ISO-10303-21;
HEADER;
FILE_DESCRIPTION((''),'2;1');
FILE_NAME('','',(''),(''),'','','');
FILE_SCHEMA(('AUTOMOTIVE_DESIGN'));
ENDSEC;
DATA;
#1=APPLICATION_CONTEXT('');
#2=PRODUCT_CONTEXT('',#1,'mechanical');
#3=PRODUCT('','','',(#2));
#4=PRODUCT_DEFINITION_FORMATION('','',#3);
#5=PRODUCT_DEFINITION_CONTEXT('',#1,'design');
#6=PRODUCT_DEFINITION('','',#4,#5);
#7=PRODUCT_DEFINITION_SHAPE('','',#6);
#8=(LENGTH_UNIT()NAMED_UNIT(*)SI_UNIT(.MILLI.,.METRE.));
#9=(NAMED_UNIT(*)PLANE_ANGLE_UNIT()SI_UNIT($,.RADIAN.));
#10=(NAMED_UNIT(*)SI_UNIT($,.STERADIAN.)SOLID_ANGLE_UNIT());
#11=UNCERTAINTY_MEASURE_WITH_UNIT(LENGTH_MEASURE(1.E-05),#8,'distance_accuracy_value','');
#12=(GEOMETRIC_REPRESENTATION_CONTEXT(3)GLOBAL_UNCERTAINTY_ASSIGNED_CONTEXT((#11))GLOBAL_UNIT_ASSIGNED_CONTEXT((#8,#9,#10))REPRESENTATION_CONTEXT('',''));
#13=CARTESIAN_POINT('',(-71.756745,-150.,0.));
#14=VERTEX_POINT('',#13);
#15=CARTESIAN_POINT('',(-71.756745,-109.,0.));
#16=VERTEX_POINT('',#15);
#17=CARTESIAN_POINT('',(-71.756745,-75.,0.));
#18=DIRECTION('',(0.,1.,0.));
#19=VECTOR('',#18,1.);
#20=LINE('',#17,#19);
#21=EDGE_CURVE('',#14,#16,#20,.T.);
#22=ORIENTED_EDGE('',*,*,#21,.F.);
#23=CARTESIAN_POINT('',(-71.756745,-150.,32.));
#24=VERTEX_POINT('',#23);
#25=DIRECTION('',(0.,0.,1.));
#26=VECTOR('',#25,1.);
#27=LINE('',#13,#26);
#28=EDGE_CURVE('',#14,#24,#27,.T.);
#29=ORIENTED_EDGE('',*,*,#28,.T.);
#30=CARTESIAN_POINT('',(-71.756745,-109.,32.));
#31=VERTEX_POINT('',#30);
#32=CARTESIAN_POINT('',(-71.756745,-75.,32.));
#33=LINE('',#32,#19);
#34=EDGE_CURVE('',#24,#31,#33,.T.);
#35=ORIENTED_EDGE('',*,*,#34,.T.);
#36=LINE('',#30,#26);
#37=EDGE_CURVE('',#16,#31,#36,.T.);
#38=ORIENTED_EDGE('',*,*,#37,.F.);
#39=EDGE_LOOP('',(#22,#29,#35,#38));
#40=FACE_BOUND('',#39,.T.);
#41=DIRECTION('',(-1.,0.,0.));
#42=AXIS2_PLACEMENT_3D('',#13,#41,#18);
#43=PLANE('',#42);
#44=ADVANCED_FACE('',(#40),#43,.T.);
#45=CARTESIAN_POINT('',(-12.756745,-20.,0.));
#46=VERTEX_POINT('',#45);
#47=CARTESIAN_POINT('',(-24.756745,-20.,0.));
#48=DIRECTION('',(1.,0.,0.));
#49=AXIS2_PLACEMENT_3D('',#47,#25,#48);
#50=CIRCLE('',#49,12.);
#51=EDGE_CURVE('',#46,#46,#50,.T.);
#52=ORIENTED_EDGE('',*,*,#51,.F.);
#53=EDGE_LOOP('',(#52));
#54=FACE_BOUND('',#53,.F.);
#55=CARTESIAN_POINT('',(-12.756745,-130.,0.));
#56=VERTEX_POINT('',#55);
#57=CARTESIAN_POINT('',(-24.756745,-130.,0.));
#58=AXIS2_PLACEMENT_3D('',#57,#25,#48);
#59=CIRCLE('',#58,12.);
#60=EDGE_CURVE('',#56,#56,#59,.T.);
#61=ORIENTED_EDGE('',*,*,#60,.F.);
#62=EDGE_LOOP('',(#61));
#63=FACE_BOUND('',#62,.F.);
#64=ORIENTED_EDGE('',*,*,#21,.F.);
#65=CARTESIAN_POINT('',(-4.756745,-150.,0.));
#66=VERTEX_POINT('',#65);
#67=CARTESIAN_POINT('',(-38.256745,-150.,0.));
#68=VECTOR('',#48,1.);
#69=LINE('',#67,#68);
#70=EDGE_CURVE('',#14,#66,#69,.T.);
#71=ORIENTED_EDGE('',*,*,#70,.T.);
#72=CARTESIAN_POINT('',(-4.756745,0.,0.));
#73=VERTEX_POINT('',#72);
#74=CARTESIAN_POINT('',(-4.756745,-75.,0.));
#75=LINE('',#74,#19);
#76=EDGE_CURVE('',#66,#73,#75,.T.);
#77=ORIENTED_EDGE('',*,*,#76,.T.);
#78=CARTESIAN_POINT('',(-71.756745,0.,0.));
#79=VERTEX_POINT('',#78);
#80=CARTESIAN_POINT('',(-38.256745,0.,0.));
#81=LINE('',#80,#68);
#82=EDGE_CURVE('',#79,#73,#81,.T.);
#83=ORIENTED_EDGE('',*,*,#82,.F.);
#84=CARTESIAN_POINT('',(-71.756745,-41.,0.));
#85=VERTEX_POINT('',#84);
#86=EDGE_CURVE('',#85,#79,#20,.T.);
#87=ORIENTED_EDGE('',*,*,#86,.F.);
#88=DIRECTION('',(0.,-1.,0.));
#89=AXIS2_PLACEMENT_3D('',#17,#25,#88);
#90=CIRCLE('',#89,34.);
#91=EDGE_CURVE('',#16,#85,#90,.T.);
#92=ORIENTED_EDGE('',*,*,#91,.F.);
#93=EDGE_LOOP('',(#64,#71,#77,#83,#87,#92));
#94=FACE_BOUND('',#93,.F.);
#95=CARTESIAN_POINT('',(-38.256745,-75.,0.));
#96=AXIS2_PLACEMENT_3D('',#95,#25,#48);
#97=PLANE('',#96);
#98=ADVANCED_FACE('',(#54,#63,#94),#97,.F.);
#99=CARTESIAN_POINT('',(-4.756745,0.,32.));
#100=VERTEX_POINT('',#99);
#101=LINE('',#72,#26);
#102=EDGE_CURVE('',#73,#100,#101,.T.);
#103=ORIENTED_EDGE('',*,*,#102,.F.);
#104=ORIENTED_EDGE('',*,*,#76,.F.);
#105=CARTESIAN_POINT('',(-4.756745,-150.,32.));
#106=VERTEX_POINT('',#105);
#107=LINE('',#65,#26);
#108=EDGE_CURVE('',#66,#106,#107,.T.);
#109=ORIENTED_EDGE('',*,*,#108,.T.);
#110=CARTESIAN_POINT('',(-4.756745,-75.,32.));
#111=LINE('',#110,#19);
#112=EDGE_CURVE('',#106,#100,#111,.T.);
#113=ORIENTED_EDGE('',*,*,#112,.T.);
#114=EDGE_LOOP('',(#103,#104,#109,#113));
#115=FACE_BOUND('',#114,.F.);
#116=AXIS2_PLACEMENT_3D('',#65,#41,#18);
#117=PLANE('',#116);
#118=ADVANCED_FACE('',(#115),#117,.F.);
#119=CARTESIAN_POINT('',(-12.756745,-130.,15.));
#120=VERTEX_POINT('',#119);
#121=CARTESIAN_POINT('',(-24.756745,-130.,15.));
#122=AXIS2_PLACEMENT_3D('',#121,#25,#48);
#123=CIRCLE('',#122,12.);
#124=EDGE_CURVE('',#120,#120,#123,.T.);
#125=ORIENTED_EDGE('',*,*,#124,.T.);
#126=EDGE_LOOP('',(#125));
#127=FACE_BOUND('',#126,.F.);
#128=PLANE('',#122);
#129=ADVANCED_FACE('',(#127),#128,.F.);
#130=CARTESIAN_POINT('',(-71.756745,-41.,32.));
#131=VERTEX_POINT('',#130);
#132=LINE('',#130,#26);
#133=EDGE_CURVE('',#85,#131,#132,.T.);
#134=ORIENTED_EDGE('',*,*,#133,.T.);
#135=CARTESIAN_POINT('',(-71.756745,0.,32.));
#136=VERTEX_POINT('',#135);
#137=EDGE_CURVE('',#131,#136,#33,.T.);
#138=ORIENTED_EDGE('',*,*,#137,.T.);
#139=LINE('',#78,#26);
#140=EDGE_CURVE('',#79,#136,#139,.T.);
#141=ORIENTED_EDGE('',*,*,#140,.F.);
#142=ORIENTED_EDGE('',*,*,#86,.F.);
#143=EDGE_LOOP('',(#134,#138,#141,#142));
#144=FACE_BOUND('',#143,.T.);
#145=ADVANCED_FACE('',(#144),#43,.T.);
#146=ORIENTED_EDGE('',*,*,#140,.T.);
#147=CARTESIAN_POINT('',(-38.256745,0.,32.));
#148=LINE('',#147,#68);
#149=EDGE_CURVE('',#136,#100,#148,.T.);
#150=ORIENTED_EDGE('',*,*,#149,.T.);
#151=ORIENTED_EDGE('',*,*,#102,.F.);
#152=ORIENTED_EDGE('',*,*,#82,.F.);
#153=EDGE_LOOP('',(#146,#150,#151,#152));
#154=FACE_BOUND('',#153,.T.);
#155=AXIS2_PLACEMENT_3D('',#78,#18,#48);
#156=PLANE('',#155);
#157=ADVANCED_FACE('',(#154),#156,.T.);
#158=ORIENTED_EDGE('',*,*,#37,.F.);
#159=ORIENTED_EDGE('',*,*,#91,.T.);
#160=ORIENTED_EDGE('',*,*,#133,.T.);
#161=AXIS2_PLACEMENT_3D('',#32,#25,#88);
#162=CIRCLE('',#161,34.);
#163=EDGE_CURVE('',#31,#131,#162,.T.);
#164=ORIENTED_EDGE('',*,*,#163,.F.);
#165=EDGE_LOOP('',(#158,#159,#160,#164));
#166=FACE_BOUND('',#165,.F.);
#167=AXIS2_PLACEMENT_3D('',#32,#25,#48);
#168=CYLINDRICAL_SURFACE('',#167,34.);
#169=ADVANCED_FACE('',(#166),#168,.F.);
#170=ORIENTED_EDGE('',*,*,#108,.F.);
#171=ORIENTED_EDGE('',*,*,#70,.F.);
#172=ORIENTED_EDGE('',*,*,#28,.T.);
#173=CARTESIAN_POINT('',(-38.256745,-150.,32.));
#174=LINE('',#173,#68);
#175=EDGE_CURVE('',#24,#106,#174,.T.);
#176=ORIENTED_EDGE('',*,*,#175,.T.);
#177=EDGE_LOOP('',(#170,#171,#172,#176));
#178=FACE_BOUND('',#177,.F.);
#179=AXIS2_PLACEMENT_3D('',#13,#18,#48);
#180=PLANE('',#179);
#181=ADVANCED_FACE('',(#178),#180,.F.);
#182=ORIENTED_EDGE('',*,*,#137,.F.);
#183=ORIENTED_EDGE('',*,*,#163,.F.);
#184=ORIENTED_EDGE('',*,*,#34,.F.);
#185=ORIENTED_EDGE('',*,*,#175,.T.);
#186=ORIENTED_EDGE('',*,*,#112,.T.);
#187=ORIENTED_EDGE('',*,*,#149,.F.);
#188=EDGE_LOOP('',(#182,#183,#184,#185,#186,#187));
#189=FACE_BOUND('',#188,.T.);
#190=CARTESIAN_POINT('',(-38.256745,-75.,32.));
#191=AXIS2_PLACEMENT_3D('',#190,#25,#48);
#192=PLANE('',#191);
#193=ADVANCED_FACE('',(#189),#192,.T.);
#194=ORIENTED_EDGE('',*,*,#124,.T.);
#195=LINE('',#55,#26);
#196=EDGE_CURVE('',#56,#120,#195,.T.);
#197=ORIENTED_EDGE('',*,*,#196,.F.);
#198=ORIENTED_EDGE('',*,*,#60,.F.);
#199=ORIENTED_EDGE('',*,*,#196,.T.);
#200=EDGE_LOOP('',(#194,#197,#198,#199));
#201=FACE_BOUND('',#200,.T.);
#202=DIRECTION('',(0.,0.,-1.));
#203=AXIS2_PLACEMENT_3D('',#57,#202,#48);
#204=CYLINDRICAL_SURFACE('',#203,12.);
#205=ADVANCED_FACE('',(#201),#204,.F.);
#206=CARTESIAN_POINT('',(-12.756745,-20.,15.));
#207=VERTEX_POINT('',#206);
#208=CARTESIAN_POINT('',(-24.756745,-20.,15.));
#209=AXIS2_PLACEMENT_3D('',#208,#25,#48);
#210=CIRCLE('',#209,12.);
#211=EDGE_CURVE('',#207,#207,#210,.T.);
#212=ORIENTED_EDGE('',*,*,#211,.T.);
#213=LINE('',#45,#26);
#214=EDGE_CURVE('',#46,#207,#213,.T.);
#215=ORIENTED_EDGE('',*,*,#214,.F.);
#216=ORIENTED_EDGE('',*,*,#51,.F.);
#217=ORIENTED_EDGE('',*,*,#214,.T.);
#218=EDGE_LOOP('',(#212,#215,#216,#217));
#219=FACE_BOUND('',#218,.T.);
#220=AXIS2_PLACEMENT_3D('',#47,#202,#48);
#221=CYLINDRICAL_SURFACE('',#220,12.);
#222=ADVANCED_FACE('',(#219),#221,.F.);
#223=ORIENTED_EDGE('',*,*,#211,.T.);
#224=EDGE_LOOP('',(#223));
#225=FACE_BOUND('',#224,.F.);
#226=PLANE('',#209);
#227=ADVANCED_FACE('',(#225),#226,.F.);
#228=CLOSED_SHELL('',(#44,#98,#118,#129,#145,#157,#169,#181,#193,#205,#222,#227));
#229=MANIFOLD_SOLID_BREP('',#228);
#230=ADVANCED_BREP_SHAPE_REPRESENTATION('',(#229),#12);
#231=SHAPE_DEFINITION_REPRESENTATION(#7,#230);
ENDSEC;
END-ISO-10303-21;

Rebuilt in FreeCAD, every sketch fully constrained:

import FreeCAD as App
import Part
import Sketcher

V = App.Vector


def add_polygon(sketch, points):
    """Adds a closed chain of lines whose ends are joined by coincident constraints."""
    first, n = sketch.GeometryCount, len(points)
    for a, b in zip(points, points[1:] + points[:1]):
        sketch.addGeometry(Part.LineSegment(App.Vector(*a, 0), App.Vector(*b, 0)), False)
    for i in range(n):
        sketch.addConstraint(Sketcher.Constraint("Coincident", first + i, 2, first + (i + 1) % n, 1))

doc = App.newDocument("Part")
body = doc.addObject("PartDesign::Body", "Body")

# Sketch on XY plane
sketch1 = body.newObject("Sketcher::SketchObject", "Sketch")
sketch1.AttachmentSupport = (doc.getObject("XY_Plane"), [""])
sketch1.MapMode = "FlatFace"
add_polygon(sketch1, [(-72, 0), (-72, -150), (-5, -150), (-5, 0)])  # lines 0-3
sketch1.addConstraint([
    Sketcher.Constraint("Vertical", 0),
    Sketcher.Constraint("Horizontal", 1),
    Sketcher.Constraint("Vertical", 2),
    Sketcher.Constraint("Horizontal", 3),
    Sketcher.Constraint("PointOnObject", 2, 2, -1),
    Sketcher.Constraint("DistanceX", 1, 1, 1, 2, 67.0),
    Sketcher.Constraint("DistanceY", 0, 2, 0, 1, 150.0),
    Sketcher.Constraint("DistanceX", 0, 2, -1, 1, 71.756745),
])
pad1 = body.newObject("PartDesign::Pad", "Pad")
pad1.Profile = sketch1
pad1.Length = 32

# Sketch on XY plane
sketch2 = body.newObject("Sketcher::SketchObject", "Sketch001")
sketch2.AttachmentSupport = (doc.getObject("XY_Plane"), [""])
sketch2.MapMode = "FlatFace"
sketch2.AttachmentOffset = App.Placement(V(0, 0, 32), App.Rotation())
sketch2.addGeometry(Part.Circle(V(-72, -75, 0), V(0, 0, 1), 34), False)
sketch2.addConstraint([
    Sketcher.Constraint("Diameter", 0, 68.0),
    Sketcher.Constraint("DistanceY", 0, 3, -1, 1, 75.0),
    Sketcher.Constraint("DistanceX", 0, 3, -1, 1, 71.756745),
])
pocket1 = body.newObject("PartDesign::Pocket", "Pocket")
pocket1.Profile = sketch2
pocket1.Length = 32

# Sketch on XY plane
sketch3 = body.newObject("Sketcher::SketchObject", "Sketch002")
sketch3.AttachmentSupport = (doc.getObject("XY_Plane"), [""])
sketch3.MapMode = "FlatFace"
sketch3.addGeometry([
    Part.Circle(V(-25, -20, 0), V(0, 0, 1), 12),
    Part.Circle(V(-25, -130, 0), V(0, 0, 1), 12),
], False)
sketch3.addConstraint([
    Sketcher.Constraint("Equal", 0, 1),
    Sketcher.Constraint("Vertical", 0, 3, 1, 3),
    Sketcher.Constraint("Diameter", 0, 24.0),
    Sketcher.Constraint("DistanceY", 0, 3, -1, 1, 20.0),
    Sketcher.Constraint("DistanceY", 1, 3, -1, 1, 130.0),
    Sketcher.Constraint("DistanceX", 0, 3, -1, 1, 24.756745),
])
pocket2 = body.newObject("PartDesign::Pocket", "Pocket001")
pocket2.Profile = sketch3
pocket2.Length = 15
pocket2.Reversed = True

doc.recompute()
